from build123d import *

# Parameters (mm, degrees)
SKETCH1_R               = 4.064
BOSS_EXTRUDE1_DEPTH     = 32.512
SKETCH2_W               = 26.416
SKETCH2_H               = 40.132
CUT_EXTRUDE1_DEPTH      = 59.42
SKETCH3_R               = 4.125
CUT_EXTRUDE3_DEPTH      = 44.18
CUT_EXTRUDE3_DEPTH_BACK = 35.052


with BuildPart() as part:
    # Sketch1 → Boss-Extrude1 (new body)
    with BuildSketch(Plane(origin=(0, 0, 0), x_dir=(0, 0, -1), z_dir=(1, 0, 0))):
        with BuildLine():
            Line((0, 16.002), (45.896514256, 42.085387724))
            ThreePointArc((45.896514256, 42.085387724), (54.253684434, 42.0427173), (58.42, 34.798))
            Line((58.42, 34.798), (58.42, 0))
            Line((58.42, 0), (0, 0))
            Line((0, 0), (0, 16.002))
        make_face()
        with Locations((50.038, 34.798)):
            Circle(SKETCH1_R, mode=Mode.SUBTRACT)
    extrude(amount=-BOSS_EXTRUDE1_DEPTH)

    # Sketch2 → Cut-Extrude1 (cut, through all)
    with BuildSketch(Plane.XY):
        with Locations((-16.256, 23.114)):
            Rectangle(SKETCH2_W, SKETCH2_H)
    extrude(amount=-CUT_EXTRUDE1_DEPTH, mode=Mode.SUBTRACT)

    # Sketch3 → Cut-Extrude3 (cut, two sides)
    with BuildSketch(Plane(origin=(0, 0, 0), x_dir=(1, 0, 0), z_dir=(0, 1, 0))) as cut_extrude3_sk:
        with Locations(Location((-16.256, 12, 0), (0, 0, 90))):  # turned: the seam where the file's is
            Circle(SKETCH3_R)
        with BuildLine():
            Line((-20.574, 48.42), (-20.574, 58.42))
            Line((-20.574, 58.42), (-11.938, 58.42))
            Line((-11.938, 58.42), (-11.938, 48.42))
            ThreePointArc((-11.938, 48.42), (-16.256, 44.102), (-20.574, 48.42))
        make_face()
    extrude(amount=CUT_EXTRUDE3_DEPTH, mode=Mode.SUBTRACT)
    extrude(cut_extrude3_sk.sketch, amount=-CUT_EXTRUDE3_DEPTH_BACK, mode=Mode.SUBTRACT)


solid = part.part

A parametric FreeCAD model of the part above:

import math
import FreeCAD as App
import Part
import Sketcher

V = App.Vector
Q = App.Units.Quantity


def add_polygon(sketch, points):
    """Adds a closed chain of lines whose ends are joined by coincident constraints."""
    first, n = sketch.GeometryCount, len(points)
    for a, b in zip(points, points[1:] + points[:1]):
        sketch.addGeometry(Part.LineSegment(App.Vector(*a, 0), App.Vector(*b, 0)), False)
    for i in range(n):
        sketch.addConstraint(Sketcher.Constraint("Coincident", first + i, 2, first + (i + 1) % n, 1))

doc = App.newDocument("Part")
params = doc.addObject("Spreadsheet::Sheet", "Params")
for row, (alias, value) in enumerate([
    ("sketch1_diameter", "0.32 in"),
    ("sketch1_radius", "0.33 in"),
    ("sketch1_height", "2.3 in"),
    ("sketch1_width", "0.63 in"),
    ("sketch1_width2", "1.37 in"),
    ("pad1_length", "1.28 in"),
    ("sketch2_width", "1.04 in"),
    ("sketch2_height", "1.58 in"),
    ("sketch3_radius", "0.17 in"),
], start=1):
    params.set(f"A{row}", alias)
    params.set(f"B{row}", "=" + value)
    params.setAlias(f"B{row}", alias)

body = doc.addObject("PartDesign::Body", "Body")

# Sketch on YZ plane
sketch1 = doc.addObject("Sketcher::SketchObject", "Sketch")
body.addObject(sketch1)
sketch1.AttachmentSupport = (doc.YZ_Plane, [""])
sketch1.MapMode = "FlatFace"
sketch1.addGeometry([
    Part.LineSegment(V(42.1, -45.9, 0), V(16, 0, 0)),  # 0
    Part.LineSegment(V(16, 0, 0), V(0, 0, 0)),  # 1
    Part.LineSegment(V(0, 0, 0), V(0, -58.4, 0)),  # 2
    Part.LineSegment(V(0, -58.4, 0), V(34.8, -58.4, 0)),  # 3
    Part.ArcOfCircle(Part.Circle(V(34.8, -50, 0), V(0, 0, 1), 8.4), math.radians(-90), math.radians(30)),  # 4
    Part.Circle(V(34.8, -50, 0), V(0, 0, 1), 4.1),  # 5
], False)
sketch1.addConstraint([
    Sketcher.Constraint("Coincident", 0, 2, 1, 1),
    Sketcher.Constraint("Coincident", 1, 2, 2, 1),
    Sketcher.Constraint("Coincident", 2, 2, 3, 1),
    Sketcher.Constraint("Tangent", 3, 2, 4, 1),
    Sketcher.Constraint("Tangent", 4, 2, 0, 1),
    Sketcher.Constraint("Horizontal", 1),
    Sketcher.Constraint("Vertical", 2),
    Sketcher.Constraint("Horizontal", 3),
    Sketcher.Constraint("Coincident", 1, 2, -1, 1),
    Sketcher.Constraint("Coincident", 5, 3, 4, 3),
    Sketcher.Constraint("Diameter", 5, Q("0.32 in")),
    Sketcher.Constraint("Radius", 4, Q("0.33 in")),
    Sketcher.Constraint("DistanceY", 2, 2, 2, 1, Q("2.3 in")),
    Sketcher.Constraint("DistanceX", 1, 2, 1, 1, Q("0.63 in")),
    Sketcher.Constraint("DistanceX", 3, 1, 3, 2, Q("1.37 in")),
])
sketch1.setExpression("Constraints[10]", "Params.sketch1_diameter")
sketch1.setExpression("Constraints[11]", "Params.sketch1_radius")
sketch1.setExpression("Constraints[12]", "Params.sketch1_height")
sketch1.setExpression("Constraints[13]", "Params.sketch1_width")
sketch1.setExpression("Constraints[14]", "Params.sketch1_width2")
pad1 = doc.addObject("PartDesign::Pad", "Pad")
body.addObject(pad1)
pad1.Profile = sketch1
pad1.setExpression("Length", "Params.pad1_length")
pad1.Reversed = True

# Sketch on XY plane
sketch2 = doc.addObject("Sketcher::SketchObject", "Sketch001")
body.addObject(sketch2)
sketch2.AttachmentSupport = (doc.XY_Plane, [""])
sketch2.MapMode = "FlatFace"
add_polygon(sketch2, [(-29, 43), (-29, 3), (-3, 3), (-3, 43)])  # lines 0-3
sketch2.addConstraint([
    Sketcher.Constraint("Vertical", 0),
    Sketcher.Constraint("Horizontal", 1),
    Sketcher.Constraint("Vertical", 2),
    Sketcher.Constraint("Horizontal", 3),
    Sketcher.Constraint("DistanceX", 1, 1, 1, 2, Q("1.04 in")),
    Sketcher.Constraint("DistanceY", 0, 2, 0, 1, Q("1.58 in")),
    Sketcher.Constraint("DistanceY", -1, 1, 2, 2, Q("1.7 in")),
    Sketcher.Constraint("DistanceX", 0, 2, -1, 1, Q("1.16 in")),
])
sketch2.setExpression("Constraints[8]", "Params.sketch2_width")
sketch2.setExpression("Constraints[9]", "Params.sketch2_height")
pocket1 = doc.addObject("PartDesign::Pocket", "Pocket")
body.addObject(pocket1)
pocket1.Profile = sketch2
pocket1.Type = "ThroughAll"

# Sketch on XZ plane
sketch3 = doc.addObject("Sketcher::SketchObject", "Sketch002")
body.addObject(sketch3)
sketch3.AttachmentSupport = (doc.XZ_Plane, [""])
sketch3.MapMode = "FlatFace"
sketch3.addGeometry([
    Part.Circle(V(-16.3, -12, 0), V(0, 0, 1), 4.1),  # 0
    Part.LineSegment(V(-20.6, -58.4, 0), V(-20.6, -48.4, 0)),  # 1
    Part.ArcOfCircle(Part.Circle(V(-16.3, -48.4, 0), V(0, 0, 1), 4.3), math.radians(0), math.radians(180)),  # 2
    Part.LineSegment(V(-11.9, -48.4, 0), V(-11.9, -58.4, 0)),  # 3
    Part.LineSegment(V(-11.9, -58.4, 0), V(-20.6, -58.4, 0)),  # 4
], False)
sketch3.addConstraint([
    Sketcher.Constraint("Tangent", 1, 2, 2, 2),
    Sketcher.Constraint("Tangent", 2, 1, 3, 1),
    Sketcher.Constraint("Coincident", 3, 2, 4, 1),
    Sketcher.Constraint("Coincident", 4, 2, 1, 1),
    Sketcher.Constraint("Vertical", 1),
    Sketcher.Constraint("Vertical", 3),
    Sketcher.Constraint("Horizontal", 4),
    Sketcher.Constraint("Vertical", 0, 3, 2, 3),
    Sketcher.Constraint("Radius", 2, Q("0.17 in")),
    Sketcher.Constraint("DistanceY", 3, 2, -1, 1, Q("2.3 in")),
    Sketcher.Constraint("Diameter", 0, 8.25),
    Sketcher.Constraint("DistanceX", 0, 3, -1, 1, Q("0.64 in")),
    Sketcher.Constraint("DistanceY", 1, 1, 1, 2, 10.0),
    Sketcher.Constraint("DistanceY", 0, 3, -1, 1, 12.0),
])
sketch3.setExpression("Constraints[8]", "Params.sketch3_radius")
pocket2 = doc.addObject("PartDesign::Pocket", "Pocket001")
body.addObject(pocket2)
pocket2.Profile = sketch3
pocket2.Type = "ThroughAll"
pocket2.Midplane = True

doc.recompute()
